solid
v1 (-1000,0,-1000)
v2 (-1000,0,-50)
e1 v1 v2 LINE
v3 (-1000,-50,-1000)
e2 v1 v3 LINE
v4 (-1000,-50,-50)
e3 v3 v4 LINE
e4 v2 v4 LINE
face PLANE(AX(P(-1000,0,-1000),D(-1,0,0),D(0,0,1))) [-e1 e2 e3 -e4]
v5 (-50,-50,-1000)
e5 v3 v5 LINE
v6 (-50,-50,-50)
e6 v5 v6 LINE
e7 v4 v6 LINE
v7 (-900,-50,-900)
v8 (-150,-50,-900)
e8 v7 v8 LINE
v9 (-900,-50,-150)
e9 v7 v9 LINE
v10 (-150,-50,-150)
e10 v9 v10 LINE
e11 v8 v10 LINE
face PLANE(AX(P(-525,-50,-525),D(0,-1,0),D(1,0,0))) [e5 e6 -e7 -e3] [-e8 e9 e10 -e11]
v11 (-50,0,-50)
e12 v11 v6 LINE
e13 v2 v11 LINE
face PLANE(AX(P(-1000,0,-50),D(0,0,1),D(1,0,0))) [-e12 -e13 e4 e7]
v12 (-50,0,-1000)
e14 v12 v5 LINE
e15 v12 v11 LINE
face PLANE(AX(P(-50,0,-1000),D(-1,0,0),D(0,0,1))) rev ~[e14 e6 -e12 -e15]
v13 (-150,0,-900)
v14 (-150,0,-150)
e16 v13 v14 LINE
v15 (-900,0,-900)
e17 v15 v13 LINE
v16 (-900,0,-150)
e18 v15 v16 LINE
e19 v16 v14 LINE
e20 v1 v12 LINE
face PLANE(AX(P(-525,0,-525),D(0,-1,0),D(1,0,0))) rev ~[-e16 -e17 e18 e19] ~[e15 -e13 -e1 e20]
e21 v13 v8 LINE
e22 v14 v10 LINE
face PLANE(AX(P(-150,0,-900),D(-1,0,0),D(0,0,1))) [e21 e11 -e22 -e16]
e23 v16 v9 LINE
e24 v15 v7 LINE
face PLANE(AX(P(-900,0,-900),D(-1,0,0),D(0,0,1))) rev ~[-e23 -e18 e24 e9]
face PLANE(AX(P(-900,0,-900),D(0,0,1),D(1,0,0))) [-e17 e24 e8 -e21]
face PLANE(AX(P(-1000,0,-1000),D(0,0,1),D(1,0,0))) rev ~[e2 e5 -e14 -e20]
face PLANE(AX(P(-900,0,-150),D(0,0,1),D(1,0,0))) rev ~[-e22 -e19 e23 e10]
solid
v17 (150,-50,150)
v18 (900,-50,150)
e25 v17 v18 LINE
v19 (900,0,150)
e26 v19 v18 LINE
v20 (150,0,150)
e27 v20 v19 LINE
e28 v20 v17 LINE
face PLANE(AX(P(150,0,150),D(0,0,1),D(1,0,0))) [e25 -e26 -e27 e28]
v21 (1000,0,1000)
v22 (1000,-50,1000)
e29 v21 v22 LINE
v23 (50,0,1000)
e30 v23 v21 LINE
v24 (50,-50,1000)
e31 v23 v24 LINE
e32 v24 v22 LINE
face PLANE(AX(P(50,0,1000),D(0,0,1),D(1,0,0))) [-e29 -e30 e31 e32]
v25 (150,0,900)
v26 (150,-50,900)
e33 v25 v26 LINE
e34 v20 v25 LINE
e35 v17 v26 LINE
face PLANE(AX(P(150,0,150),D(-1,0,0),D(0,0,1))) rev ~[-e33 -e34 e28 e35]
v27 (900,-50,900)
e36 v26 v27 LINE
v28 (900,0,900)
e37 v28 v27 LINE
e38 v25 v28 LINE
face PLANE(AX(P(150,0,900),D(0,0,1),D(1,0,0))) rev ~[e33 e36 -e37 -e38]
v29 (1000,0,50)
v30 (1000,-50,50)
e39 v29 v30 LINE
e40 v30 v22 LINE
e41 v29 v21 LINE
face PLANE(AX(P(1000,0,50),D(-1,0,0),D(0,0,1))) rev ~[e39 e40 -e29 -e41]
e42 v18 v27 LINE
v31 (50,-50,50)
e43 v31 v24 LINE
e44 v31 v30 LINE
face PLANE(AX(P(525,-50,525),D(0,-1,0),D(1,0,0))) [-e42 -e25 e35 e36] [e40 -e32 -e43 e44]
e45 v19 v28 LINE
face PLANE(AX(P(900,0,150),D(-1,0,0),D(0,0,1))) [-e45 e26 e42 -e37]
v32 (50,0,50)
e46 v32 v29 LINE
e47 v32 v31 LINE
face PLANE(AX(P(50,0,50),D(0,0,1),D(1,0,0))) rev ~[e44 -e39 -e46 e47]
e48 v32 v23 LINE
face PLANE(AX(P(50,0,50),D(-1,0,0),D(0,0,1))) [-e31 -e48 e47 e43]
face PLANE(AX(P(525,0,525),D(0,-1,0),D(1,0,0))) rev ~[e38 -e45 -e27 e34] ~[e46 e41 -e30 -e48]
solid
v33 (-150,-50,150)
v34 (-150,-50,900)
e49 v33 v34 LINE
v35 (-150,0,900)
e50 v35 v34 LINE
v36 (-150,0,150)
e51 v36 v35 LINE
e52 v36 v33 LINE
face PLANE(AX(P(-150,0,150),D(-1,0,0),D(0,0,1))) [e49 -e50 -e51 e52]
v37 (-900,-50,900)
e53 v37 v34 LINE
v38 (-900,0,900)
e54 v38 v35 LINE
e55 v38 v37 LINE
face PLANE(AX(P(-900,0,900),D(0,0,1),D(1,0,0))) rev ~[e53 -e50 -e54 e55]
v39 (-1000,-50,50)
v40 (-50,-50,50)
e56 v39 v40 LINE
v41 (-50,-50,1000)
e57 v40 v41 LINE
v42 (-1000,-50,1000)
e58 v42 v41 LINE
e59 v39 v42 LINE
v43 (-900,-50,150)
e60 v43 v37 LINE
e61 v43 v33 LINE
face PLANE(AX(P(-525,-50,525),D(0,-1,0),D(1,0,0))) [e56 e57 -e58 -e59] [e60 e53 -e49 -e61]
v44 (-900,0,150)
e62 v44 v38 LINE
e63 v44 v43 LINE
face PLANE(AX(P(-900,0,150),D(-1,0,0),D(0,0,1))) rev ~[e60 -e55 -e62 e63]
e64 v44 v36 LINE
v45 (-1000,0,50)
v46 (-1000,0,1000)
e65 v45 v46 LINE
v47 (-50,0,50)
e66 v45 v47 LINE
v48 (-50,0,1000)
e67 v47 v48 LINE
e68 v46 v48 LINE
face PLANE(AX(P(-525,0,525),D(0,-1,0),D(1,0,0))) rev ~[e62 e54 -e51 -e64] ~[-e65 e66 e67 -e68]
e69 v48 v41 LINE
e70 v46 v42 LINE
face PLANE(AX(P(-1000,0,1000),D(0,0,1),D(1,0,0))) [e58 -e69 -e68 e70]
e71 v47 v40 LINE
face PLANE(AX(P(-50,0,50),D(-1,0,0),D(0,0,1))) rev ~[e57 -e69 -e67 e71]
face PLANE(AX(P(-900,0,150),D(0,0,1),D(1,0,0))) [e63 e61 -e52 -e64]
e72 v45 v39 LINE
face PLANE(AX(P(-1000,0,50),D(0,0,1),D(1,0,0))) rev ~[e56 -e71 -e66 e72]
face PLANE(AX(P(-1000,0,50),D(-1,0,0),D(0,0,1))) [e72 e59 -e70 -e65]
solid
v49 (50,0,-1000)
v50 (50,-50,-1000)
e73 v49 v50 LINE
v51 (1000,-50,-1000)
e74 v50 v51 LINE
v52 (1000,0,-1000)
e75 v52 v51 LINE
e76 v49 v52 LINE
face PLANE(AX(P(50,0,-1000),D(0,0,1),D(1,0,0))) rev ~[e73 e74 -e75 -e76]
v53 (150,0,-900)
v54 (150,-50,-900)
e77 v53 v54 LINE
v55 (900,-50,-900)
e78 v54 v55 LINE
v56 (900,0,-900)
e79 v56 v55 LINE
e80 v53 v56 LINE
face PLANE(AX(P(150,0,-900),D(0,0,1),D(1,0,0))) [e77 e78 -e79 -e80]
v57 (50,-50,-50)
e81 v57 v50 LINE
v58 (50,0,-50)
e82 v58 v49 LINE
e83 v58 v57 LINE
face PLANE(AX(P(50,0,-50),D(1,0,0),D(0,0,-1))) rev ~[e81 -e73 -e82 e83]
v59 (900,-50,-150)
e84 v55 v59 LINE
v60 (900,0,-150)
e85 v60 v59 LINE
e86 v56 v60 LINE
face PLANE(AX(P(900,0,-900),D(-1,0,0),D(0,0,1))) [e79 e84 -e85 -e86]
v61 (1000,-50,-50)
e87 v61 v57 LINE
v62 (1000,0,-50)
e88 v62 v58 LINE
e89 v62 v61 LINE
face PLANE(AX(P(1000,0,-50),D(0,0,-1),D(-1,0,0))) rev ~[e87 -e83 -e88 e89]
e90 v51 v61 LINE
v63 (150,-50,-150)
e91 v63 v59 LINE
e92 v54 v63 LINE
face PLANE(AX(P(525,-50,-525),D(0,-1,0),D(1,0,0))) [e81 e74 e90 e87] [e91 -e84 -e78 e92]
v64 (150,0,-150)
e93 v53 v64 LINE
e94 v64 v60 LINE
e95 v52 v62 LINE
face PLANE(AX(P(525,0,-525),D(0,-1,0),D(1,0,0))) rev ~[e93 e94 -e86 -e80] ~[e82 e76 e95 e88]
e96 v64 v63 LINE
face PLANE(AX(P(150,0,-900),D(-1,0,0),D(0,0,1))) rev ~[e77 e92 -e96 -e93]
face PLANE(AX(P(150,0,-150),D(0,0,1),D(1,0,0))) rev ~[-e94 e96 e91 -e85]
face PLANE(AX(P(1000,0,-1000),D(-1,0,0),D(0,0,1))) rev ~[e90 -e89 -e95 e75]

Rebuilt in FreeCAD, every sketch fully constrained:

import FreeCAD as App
import Part
import Sketcher

V = App.Vector
Q = App.Units.Quantity


def add_polygon(sketch, points):
    """Adds a closed chain of lines whose ends are joined by coincident constraints."""
    first, n = sketch.GeometryCount, len(points)
    for a, b in zip(points, points[1:] + points[:1]):
        sketch.addGeometry(Part.LineSegment(App.Vector(*a, 0), App.Vector(*b, 0)), False)
    for i in range(n):
        sketch.addConstraint(Sketcher.Constraint("Coincident", first + i, 2, first + (i + 1) % n, 1))

doc = App.newDocument("Part")
body = doc.addObject("PartDesign::Body", "Body")
body.AllowCompound = True

# Sketch on XZ plane
sketch1 = body.newObject("Sketcher::SketchObject", "Sketch")
sketch1.AttachmentSupport = (doc.getObject("XZ_Plane"), [""])
sketch1.MapMode = "FlatFace"
add_polygon(sketch1, [(-1000, 1000), (-1000, 50), (-50, 50), (-50, 1000)])  # lines 0-3
add_polygon(sketch1, [(-150, 150), (-900, 150), (-900, 900), (-150, 900)])  # lines 4-7
add_polygon(sketch1, [(-1000, -50), (-1000, -1000), (-50, -1000), (-50, -50)])  # lines 8-11
add_polygon(sketch1, [(-150, -900), (-900, -900), (-900, -150), (-150, -150)])  # lines 12-15
add_polygon(sketch1, [(50, 1000), (50, 50), (1000, 50), (1000, 1000)])  # lines 16-19
add_polygon(sketch1, [(900, 150), (150, 150), (150, 900), (900, 900)])  # lines 20-23
add_polygon(sketch1, [(1000, -50), (50, -50), (50, -1000), (1000, -1000)])  # lines 24-27
add_polygon(sketch1, [(900, -900), (150, -900), (150, -150), (900, -150)])  # lines 28-31
sketch1.addConstraint(Sketcher.Constraint("Vertical", 0))
sketch1.addConstraint(Sketcher.Constraint("Horizontal", 1))
sketch1.addConstraint(Sketcher.Constraint("Vertical", 2))
sketch1.addConstraint(Sketcher.Constraint("Horizontal", 3))
sketch1.addConstraint(Sketcher.Constraint("Horizontal", 4))
sketch1.addConstraint(Sketcher.Constraint("Vertical", 5))
sketch1.addConstraint(Sketcher.Constraint("Horizontal", 6))
sketch1.addConstraint(Sketcher.Constraint("Vertical", 7))
sketch1.addConstraint(Sketcher.Constraint("Vertical", 8))
sketch1.addConstraint(Sketcher.Constraint("Horizontal", 9))
sketch1.addConstraint(Sketcher.Constraint("Vertical", 10))
sketch1.addConstraint(Sketcher.Constraint("Horizontal", 11))
sketch1.addConstraint(Sketcher.Constraint("Horizontal", 12))
sketch1.addConstraint(Sketcher.Constraint("Vertical", 13))
sketch1.addConstraint(Sketcher.Constraint("Horizontal", 14))
sketch1.addConstraint(Sketcher.Constraint("Vertical", 15))
sketch1.addConstraint(Sketcher.Constraint("Vertical", 16))
sketch1.addConstraint(Sketcher.Constraint("Horizontal", 17))
sketch1.addConstraint(Sketcher.Constraint("Vertical", 18))
sketch1.addConstraint(Sketcher.Constraint("Horizontal", 19))
sketch1.addConstraint(Sketcher.Constraint("Horizontal", 20))
sketch1.addConstraint(Sketcher.Constraint("Vertical", 21))
sketch1.addConstraint(Sketcher.Constraint("Horizontal", 22))
sketch1.addConstraint(Sketcher.Constraint("Vertical", 23))
sketch1.addConstraint(Sketcher.Constraint("Horizontal", 24))
sketch1.addConstraint(Sketcher.Constraint("Vertical", 25))
sketch1.addConstraint(Sketcher.Constraint("Horizontal", 26))
sketch1.addConstraint(Sketcher.Constraint("Vertical", 27))
sketch1.addConstraint(Sketcher.Constraint("Horizontal", 28))
sketch1.addConstraint(Sketcher.Constraint("Vertical", 29))
sketch1.addConstraint(Sketcher.Constraint("Horizontal", 30))
sketch1.addConstraint(Sketcher.Constraint("Vertical", 31))
sketch1.addConstraint(Sketcher.Constraint("Symmetric", 10, 2, 16, 2, -1, 1))
sketch1.addConstraint(Sketcher.Constraint("Symmetric", 8, 2, 18, 2, -1, 1))
sketch1.addConstraint(Sketcher.Constraint("Symmetric", 14, 2, 20, 2, -1, 1))
sketch1.addConstraint(Sketcher.Constraint("Symmetric", 12, 2, 22, 2, -1, 1))
sketch1.addConstraint(Sketcher.Constraint("Symmetric", 1, 2, 24, 2, -1, 1))
sketch1.addConstraint(Sketcher.Constraint("Symmetric", 3, 2, 26, 2, -1, 1))
sketch1.addConstraint(Sketcher.Constraint("Symmetric", 6, 2, 28, 2, -1, 1))
sketch1.addConstraint(Sketcher.Constraint("Symmetric", 4, 2, 30, 2, -1, 1))
sketch1.addConstraint(Sketcher.Constraint("Symmetric", 1, 2, 16, 2, -2))
sketch1.addConstraint(Sketcher.Constraint("Symmetric", 3, 2, 18, 2, -2))
sketch1.addConstraint(Sketcher.Constraint("Symmetric", 7, 2, 20, 2, -2))
sketch1.addConstraint(Sketcher.Constraint("Symmetric", 5, 2, 22, 2, -2))
sketch1.addConstraint(Sketcher.Constraint("Equal", 26, 0))
sketch1.addConstraint(Sketcher.Constraint("Equal", 30, 5))
sketch1.addConstraint(Sketcher.Constraint("DistanceX", 1, 1, 1, 2, Q("950 mm")))
sketch1.addConstraint(Sketcher.Constraint("DistanceX", 4, 2, 4, 1, Q("750 mm")))
sketch1.addConstraint(Sketcher.Constraint("DistanceX", 0, 2, -1, 1, Q("1000 mm")))
sketch1.addConstraint(Sketcher.Constraint("DistanceY", -1, 1, 0, 2, Q("50 mm")))
sketch1.addConstraint(Sketcher.Constraint("DistanceX", 4, 2, -1, 1, Q("900 mm")))
sketch1.addConstraint(Sketcher.Constraint("DistanceY", -1, 1, 4, 2, Q("150 mm")))
pad1 = body.newObject("PartDesign::Pad", "Pad")
pad1.Profile = sketch1
pad1.Length = 50

doc.recompute()
